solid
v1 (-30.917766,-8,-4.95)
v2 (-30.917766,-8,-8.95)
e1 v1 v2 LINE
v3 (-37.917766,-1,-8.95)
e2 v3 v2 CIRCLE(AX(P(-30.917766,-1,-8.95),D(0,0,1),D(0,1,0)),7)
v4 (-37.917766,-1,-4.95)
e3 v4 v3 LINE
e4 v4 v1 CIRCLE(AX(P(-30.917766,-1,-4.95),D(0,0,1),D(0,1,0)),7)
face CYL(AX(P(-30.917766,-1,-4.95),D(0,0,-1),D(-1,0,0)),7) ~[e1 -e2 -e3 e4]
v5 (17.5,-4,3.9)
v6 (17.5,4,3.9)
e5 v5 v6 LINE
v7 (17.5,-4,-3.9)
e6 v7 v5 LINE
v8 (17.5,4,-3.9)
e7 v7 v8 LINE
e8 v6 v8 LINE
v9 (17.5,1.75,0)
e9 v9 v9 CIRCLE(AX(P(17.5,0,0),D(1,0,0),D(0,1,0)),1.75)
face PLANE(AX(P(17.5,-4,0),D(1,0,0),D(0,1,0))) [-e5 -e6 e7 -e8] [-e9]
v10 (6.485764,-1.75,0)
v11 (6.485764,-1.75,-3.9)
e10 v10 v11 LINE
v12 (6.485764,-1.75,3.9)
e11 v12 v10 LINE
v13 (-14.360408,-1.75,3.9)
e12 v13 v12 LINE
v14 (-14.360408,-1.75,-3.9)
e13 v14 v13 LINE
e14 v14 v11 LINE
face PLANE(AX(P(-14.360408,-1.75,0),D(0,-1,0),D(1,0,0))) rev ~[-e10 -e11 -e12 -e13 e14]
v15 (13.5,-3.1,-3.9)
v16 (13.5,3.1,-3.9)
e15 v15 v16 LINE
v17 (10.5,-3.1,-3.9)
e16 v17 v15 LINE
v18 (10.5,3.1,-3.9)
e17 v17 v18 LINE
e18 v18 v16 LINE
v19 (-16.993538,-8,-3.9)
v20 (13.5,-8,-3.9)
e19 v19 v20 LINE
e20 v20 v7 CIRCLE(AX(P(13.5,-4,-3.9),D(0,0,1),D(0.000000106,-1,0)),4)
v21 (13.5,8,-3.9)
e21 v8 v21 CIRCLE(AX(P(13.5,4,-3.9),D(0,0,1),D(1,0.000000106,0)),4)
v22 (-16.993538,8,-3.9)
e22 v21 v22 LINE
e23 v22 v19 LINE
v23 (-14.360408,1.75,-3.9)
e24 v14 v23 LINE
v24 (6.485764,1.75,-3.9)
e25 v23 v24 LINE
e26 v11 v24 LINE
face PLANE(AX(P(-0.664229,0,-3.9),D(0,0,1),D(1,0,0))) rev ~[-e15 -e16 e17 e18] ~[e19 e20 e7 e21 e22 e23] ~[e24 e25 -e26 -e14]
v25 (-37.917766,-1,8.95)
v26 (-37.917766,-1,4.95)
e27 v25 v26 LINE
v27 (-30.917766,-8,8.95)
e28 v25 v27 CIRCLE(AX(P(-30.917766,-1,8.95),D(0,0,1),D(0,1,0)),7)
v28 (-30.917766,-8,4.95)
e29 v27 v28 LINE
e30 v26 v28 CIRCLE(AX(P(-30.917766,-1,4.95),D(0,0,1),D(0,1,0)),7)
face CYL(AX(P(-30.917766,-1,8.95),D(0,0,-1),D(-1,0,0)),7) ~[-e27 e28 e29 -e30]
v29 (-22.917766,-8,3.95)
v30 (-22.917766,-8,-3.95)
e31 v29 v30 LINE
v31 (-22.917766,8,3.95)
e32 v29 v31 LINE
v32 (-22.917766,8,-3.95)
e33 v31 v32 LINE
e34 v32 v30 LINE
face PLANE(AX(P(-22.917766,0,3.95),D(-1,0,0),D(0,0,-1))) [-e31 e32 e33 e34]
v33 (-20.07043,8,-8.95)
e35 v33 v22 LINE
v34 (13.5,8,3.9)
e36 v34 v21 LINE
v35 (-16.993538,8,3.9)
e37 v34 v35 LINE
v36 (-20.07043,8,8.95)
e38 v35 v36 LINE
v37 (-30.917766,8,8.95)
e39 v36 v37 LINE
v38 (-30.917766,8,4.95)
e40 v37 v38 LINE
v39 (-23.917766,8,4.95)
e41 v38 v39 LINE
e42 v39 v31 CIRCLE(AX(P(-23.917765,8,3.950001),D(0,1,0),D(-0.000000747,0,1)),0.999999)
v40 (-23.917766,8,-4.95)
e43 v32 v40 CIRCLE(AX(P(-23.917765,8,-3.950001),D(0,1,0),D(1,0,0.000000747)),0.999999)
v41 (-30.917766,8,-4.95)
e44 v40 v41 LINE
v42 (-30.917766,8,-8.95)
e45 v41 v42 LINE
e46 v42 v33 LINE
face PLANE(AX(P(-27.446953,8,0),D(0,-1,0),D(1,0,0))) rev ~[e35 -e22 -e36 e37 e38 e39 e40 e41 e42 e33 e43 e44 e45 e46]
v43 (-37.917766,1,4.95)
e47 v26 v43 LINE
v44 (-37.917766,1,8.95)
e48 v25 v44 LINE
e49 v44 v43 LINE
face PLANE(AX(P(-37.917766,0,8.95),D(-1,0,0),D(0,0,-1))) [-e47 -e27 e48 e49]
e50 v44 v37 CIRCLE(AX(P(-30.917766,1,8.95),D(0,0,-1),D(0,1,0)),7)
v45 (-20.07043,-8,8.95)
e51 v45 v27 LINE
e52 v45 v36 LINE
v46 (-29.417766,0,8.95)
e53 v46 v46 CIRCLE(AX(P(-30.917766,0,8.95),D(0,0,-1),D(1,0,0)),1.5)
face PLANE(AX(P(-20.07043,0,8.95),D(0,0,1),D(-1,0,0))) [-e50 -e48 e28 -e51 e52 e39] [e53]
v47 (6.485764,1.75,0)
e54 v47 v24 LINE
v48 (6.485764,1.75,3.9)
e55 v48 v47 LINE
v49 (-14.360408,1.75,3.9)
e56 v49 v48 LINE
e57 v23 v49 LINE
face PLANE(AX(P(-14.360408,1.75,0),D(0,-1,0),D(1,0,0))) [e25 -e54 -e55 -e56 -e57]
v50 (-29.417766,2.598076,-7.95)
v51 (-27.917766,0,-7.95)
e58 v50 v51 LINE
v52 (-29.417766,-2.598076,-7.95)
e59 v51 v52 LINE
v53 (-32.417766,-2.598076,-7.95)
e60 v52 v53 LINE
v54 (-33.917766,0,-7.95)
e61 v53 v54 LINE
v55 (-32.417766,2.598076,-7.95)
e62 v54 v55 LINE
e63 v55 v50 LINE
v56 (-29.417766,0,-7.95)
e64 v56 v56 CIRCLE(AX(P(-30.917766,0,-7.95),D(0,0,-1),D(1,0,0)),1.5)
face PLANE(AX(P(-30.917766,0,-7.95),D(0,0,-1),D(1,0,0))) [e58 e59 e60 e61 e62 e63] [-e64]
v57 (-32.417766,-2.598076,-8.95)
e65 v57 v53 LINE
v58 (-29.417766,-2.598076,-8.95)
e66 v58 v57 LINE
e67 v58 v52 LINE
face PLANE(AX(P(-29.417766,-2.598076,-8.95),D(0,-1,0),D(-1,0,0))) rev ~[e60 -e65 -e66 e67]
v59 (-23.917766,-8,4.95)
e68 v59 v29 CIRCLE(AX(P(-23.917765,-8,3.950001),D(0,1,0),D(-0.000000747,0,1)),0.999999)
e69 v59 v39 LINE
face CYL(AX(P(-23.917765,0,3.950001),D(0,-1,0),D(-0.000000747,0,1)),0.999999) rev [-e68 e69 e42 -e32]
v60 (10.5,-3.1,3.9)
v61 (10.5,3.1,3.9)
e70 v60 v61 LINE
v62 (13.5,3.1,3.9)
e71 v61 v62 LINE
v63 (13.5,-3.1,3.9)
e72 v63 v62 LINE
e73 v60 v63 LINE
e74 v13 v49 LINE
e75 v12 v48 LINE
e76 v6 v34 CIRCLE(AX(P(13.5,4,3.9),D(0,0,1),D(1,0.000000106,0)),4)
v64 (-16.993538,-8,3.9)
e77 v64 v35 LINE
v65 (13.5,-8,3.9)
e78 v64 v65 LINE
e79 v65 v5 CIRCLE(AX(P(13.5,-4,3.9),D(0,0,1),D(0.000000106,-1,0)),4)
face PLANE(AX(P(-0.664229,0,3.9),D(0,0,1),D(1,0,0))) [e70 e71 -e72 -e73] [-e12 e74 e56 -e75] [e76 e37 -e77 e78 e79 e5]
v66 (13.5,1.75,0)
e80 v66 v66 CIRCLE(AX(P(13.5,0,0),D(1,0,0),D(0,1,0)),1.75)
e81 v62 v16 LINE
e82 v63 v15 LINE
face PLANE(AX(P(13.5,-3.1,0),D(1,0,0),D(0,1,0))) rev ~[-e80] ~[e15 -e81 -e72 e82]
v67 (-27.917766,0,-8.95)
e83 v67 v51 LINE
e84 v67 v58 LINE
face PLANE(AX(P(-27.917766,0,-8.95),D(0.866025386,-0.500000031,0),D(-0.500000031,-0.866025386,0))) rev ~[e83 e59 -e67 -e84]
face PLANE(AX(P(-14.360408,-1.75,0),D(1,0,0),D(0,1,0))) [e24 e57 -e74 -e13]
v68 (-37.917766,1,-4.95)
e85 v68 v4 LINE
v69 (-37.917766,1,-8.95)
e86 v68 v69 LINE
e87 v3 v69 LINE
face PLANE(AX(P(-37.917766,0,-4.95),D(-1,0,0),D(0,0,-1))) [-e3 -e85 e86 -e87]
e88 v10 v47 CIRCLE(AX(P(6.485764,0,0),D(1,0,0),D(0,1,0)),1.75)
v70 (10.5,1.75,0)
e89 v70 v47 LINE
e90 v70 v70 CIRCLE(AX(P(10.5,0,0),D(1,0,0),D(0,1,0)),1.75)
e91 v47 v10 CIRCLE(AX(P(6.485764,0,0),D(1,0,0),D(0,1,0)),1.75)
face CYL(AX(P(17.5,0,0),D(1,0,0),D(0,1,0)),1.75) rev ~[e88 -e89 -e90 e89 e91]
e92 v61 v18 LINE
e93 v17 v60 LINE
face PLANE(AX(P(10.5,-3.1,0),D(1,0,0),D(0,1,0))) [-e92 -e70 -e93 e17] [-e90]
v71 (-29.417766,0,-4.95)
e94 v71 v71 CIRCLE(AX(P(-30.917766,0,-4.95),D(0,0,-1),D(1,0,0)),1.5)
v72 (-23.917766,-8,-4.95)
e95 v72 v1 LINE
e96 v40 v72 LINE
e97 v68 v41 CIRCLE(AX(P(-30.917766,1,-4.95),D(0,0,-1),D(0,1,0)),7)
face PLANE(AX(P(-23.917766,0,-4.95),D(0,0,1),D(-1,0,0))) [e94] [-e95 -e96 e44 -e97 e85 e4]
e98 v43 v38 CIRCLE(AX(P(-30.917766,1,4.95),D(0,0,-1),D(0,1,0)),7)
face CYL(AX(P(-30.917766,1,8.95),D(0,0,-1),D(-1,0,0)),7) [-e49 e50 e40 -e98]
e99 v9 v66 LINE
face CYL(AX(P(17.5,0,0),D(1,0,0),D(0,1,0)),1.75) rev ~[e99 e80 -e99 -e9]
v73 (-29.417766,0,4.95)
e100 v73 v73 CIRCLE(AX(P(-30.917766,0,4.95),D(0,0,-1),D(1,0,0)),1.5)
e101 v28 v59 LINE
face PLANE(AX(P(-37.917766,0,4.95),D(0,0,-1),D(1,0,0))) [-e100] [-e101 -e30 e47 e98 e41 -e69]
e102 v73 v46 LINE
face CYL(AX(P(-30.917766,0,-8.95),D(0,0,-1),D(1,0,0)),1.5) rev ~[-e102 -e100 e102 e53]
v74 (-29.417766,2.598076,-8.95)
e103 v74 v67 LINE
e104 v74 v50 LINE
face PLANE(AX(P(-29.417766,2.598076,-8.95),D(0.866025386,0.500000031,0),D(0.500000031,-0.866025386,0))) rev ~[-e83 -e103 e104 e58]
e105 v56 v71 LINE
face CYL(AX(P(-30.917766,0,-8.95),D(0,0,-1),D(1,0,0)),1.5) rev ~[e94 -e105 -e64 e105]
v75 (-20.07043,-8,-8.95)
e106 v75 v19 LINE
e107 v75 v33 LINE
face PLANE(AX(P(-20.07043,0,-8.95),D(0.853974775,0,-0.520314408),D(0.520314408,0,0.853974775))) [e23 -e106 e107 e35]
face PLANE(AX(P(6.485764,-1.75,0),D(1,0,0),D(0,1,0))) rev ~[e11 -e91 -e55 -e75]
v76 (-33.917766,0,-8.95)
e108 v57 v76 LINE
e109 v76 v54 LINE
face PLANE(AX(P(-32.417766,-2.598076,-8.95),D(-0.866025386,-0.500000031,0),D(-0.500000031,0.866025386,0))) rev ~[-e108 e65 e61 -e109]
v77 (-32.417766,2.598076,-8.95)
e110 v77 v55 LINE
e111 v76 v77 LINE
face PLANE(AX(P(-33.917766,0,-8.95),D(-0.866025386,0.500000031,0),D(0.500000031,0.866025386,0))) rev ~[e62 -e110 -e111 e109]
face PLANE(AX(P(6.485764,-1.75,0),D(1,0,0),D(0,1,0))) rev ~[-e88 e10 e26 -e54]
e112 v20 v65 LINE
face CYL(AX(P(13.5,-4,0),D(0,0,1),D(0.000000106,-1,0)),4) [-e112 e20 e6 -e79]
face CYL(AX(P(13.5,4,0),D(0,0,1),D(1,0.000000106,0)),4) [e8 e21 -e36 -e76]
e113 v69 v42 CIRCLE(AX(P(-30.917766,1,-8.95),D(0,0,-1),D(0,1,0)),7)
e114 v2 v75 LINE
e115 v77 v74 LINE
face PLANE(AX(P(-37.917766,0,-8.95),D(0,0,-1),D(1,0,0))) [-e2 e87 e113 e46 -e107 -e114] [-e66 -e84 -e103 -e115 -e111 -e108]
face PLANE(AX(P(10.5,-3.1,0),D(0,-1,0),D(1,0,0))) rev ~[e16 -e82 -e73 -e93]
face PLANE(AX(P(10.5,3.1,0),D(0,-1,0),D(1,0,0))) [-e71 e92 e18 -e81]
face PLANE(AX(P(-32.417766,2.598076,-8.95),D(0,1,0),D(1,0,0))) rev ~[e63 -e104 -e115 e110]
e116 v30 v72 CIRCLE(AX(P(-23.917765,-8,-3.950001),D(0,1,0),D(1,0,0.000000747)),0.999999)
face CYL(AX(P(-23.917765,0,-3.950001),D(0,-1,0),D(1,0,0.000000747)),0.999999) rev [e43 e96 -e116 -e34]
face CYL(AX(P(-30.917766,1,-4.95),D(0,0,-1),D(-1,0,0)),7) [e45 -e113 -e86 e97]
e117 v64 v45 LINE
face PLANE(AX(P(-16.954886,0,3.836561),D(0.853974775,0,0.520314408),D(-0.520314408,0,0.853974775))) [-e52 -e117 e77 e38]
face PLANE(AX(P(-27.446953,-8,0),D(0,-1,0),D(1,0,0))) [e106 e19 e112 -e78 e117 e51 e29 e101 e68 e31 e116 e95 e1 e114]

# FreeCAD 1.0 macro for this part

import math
import FreeCAD as App
import Part
import Sketcher

V = App.Vector
Q = App.Units.Quantity


def edges_at(feature, points):
    """Names of the edges that pass closest to the given points."""
    edges = feature.Shape.Edges
    near = lambda p: min(range(len(edges)), key=lambda i: edges[i].distToShape(Part.Vertex(*p))[0])
    return sorted({f"Edge{near(p) + 1}" for p in points})


def add_polygon(sketch, points):
    """Adds a closed chain of lines whose ends are joined by coincident constraints."""
    first, n = sketch.GeometryCount, len(points)
    for a, b in zip(points, points[1:] + points[:1]):
        sketch.addGeometry(Part.LineSegment(App.Vector(*a, 0), App.Vector(*b, 0)), False)
    for i in range(n):
        sketch.addConstraint(Sketcher.Constraint("Coincident", first + i, 2, first + (i + 1) % n, 1))

doc = App.newDocument("Part")
body = doc.addObject("PartDesign::Body", "Body")

sketch1 = doc.addObject("Sketcher::SketchObject", "Sketch")
body.addObject(sketch1)
sketch1.AttachmentSupport = (doc.XY_Plane, [""])
sketch1.MapMode = "FlatFace"
sketch1.addGeometry(Part.LineSegment(V(-17.5, 8, 0), V(-17.5, -8, 0)), False)
sketch1.addGeometry(Part.LineSegment(V(-17.5, -8, 0), V(13.5, -8, 0)), False)
sketch1.addGeometry(Part.ArcOfCircle(Part.Circle(V(13.5, -4, 0), V(0, 0, 1), 4), math.radians(-90), math.radians(0)), False)
sketch1.addGeometry(Part.LineSegment(V(17.5, -4, 0), V(17.5, 4, 0)), False)
sketch1.addGeometry(Part.ArcOfCircle(Part.Circle(V(13.5, 4, 0), V(0, 0, 1), 4), math.radians(0), math.radians(90)), False)
sketch1.addGeometry(Part.LineSegment(V(13.5, 8, 0), V(-17.5, 8, 0)), False)
add_polygon(sketch1, [(6.5, -1.8), (-14.4, -1.8), (-14.4, 1.8), (6.5, 1.8)])
add_polygon(sketch1, [(13.5, -3.1), (10.5, -3.1), (10.5, 3.1), (13.5, 3.1)])
sketch1.addConstraint(Sketcher.Constraint("Coincident", 0, 2, 1, 1))
sketch1.addConstraint(Sketcher.Constraint("Tangent", 1, 2, 2, 1))
sketch1.addConstraint(Sketcher.Constraint("Tangent", 2, 2, 3, 1))
sketch1.addConstraint(Sketcher.Constraint("Tangent", 3, 2, 4, 1))
sketch1.addConstraint(Sketcher.Constraint("Tangent", 4, 2, 5, 1))
sketch1.addConstraint(Sketcher.Constraint("Coincident", 5, 2, 0, 1))
sketch1.addConstraint(Sketcher.Constraint("Vertical", 0))
sketch1.addConstraint(Sketcher.Constraint("Horizontal", 1))
sketch1.addConstraint(Sketcher.Constraint("Vertical", 3))
sketch1.addConstraint(Sketcher.Constraint("Horizontal", 5))
sketch1.addConstraint(Sketcher.Constraint("Horizontal", 6))
sketch1.addConstraint(Sketcher.Constraint("Vertical", 7))
sketch1.addConstraint(Sketcher.Constraint("Horizontal", 8))
sketch1.addConstraint(Sketcher.Constraint("Vertical", 9))
sketch1.addConstraint(Sketcher.Constraint("Horizontal", 10))
sketch1.addConstraint(Sketcher.Constraint("Vertical", 11))
sketch1.addConstraint(Sketcher.Constraint("Horizontal", 12))
sketch1.addConstraint(Sketcher.Constraint("Vertical", 13))
sketch1.addConstraint(Sketcher.Constraint("Equal", 2, 4))
sketch1.addConstraint(Sketcher.Constraint("Vertical", 4, 2, 12, 2))
sketch1.addConstraint(Sketcher.Constraint("Radius", 2, Q("4 mm")))
sketch1.addConstraint(Sketcher.Constraint("DistanceX", 1, 1, 1, 2, Q("31 mm")))
sketch1.addConstraint(Sketcher.Constraint("DistanceX", 10, 2, 10, 1, Q("3 mm")))
sketch1.addConstraint(Sketcher.Constraint("DistanceY", 0, 2, 0, 1, Q("16 mm")))
sketch1.addConstraint(Sketcher.Constraint("DistanceY", 7, 1, 7, 2, Q("3.5 mm")))
sketch1.addConstraint(Sketcher.Constraint("DistanceY", 11, 1, 11, 2, Q("6.2 mm")))
sketch1.addConstraint(Sketcher.Constraint("DistanceY", 2, 3, -1, 1, Q("4 mm")))
sketch1.addConstraint(Sketcher.Constraint("DistanceX", -1, 1, 2, 3, Q("13.5 mm")))
sketch1.addConstraint(Sketcher.Constraint("DistanceY", 10, 2, -1, 1, Q("3.1 mm")))
sketch1.addConstraint(Sketcher.Constraint("DistanceY", 6, 2, -1, 1, Q("1.75 mm")))
sketch1.addConstraint(Sketcher.Constraint("DistanceX", 6, 2, 6, 1, Q("20.846172 mm")))
sketch1.addConstraint(Sketcher.Constraint("DistanceX", 6, 2, -1, 1, Q("14.360408 mm")))
pad1 = doc.addObject("PartDesign::Pad", "Pad")
body.addObject(pad1)
pad1.Profile = sketch1
pad1.Type = "TwoLengths"
pad1.Length = 3.9
pad1.Length2 = 3.9

sketch2 = doc.addObject("Sketcher::SketchObject", "Sketch001")
body.addObject(sketch2)
sketch2.AttachmentSupport = (doc.YZ_Plane, [""])
sketch2.MapMode = "FlatFace"
sketch2.AttachmentOffset = App.Placement(V(0, 0, 17.5), App.Rotation())
sketch2.addGeometry(Part.Circle(V(0, 0, 0), V(0, 0, 1), 1.8), False)
sketch2.addConstraint(Sketcher.Constraint("Coincident", 0, 3, -1, 1))
sketch2.addConstraint(Sketcher.Constraint("Diameter", 0, Q("3.5 mm")))
pocket1 = doc.addObject("PartDesign::Pocket", "Pocket")
body.addObject(pocket1)
pocket1.Profile = sketch2
pocket1.Length = 16.2

sketch3 = doc.addObject("Sketcher::SketchObject", "Sketch002")
body.addObject(sketch3)
sketch3.AttachmentSupport = (doc.XZ_Plane, [""])
sketch3.MapMode = "FlatFace"
sketch3.addGeometry(Part.LineSegment(V(-22.9, 4, 0), V(-22.9, -4, 0)), False)
sketch3.addGeometry(Part.ArcOfCircle(Part.Circle(V(-23.9, -4, 0), V(0, 0, 1), 1), math.radians(-90), math.radians(0)), False)
sketch3.addGeometry(Part.LineSegment(V(-23.9, -5, 0), V(-37.9, -5, 0)), False)
sketch3.addGeometry(Part.LineSegment(V(-37.9, -5, 0), V(-37.9, -8.9, 0)), False)
sketch3.addGeometry(Part.LineSegment(V(-37.9, -8.9, 0), V(-20.1, -8.9, 0)), False)
sketch3.addGeometry(Part.LineSegment(V(-20.1, -8.9, 0), V(-17, -3.8, 0)), False)
sketch3.addGeometry(Part.LineSegment(V(-17, -3.8, 0), V(-17, 3.8, 0)), False)
sketch3.addGeometry(Part.LineSegment(V(-17, 3.8, 0), V(-20.1, 8.9, 0)), False)
sketch3.addGeometry(Part.LineSegment(V(-20.1, 8.9, 0), V(-37.9, 8.9, 0)), False)
sketch3.addGeometry(Part.LineSegment(V(-37.9, 8.9, 0), V(-37.9, 5, 0)), False)
sketch3.addGeometry(Part.LineSegment(V(-37.9, 5, 0), V(-23.9, 5, 0)), False)
sketch3.addGeometry(Part.ArcOfCircle(Part.Circle(V(-23.9, 4, 0), V(0, 0, 1), 1), math.radians(0), math.radians(90)), False)
sketch3.addConstraint(Sketcher.Constraint("Tangent", 0, 2, 1, 2))
sketch3.addConstraint(Sketcher.Constraint("Tangent", 1, 1, 2, 1))
sketch3.addConstraint(Sketcher.Constraint("Coincident", 2, 2, 3, 1))
sketch3.addConstraint(Sketcher.Constraint("Coincident", 3, 2, 4, 1))
sketch3.addConstraint(Sketcher.Constraint("Coincident", 4, 2, 5, 1))
sketch3.addConstraint(Sketcher.Constraint("Coincident", 5, 2, 6, 1))
sketch3.addConstraint(Sketcher.Constraint("Coincident", 6, 2, 7, 1))
sketch3.addConstraint(Sketcher.Constraint("Coincident", 7, 2, 8, 1))
sketch3.addConstraint(Sketcher.Constraint("Coincident", 8, 2, 9, 1))
sketch3.addConstraint(Sketcher.Constraint("Coincident", 9, 2, 10, 1))
sketch3.addConstraint(Sketcher.Constraint("Tangent", 10, 2, 11, 2))
sketch3.addConstraint(Sketcher.Constraint("Tangent", 11, 1, 0, 1))
sketch3.addConstraint(Sketcher.Constraint("Vertical", 0))
sketch3.addConstraint(Sketcher.Constraint("Horizontal", 2))
sketch3.addConstraint(Sketcher.Constraint("Vertical", 3))
sketch3.addConstraint(Sketcher.Constraint("Horizontal", 4))
sketch3.addConstraint(Sketcher.Constraint("Vertical", 6))
sketch3.addConstraint(Sketcher.Constraint("Horizontal", 8))
sketch3.addConstraint(Sketcher.Constraint("Vertical", 9))
sketch3.addConstraint(Sketcher.Constraint("Horizontal", 10))
sketch3.addConstraint(Sketcher.Constraint("Equal", 1, 11))
sketch3.addConstraint(Sketcher.Constraint("Symmetric", 4, 2, 7, 2, -1))
sketch3.addConstraint(Sketcher.Constraint("Symmetric", 2, 2, 9, 2, -1))
sketch3.addConstraint(Sketcher.Constraint("Equal", 5, 7))
sketch3.addConstraint(Sketcher.Constraint("Radius", 1, Q("0.999999 mm")))
sketch3.addConstraint(Sketcher.Constraint("DistanceX", 2, 2, 2, 1, Q("14 mm")))
sketch3.addConstraint(Sketcher.Constraint("DistanceY", 3, 2, 3, 1, Q("4 mm")))
sketch3.addConstraint(Sketcher.Constraint("DistanceY", 0, 2, 0, 1, Q("7.9 mm")))
sketch3.addConstraint(Sketcher.Constraint("Distance", 5, Q("5.98781 mm")))
sketch3.addConstraint(Sketcher.Constraint("DistanceX", 4, 1, 4, 2, Q("17.847336 mm")))
sketch3.addConstraint(Sketcher.Constraint("DistanceY", 6, 1, 6, 2, Q("7.673122 mm")))
sketch3.addConstraint(Sketcher.Constraint("DistanceX", 4, 2, -1, 1, Q("20.07043 mm")))
pad2 = doc.addObject("PartDesign::Pad", "Pad001")
body.addObject(pad2)
pad2.Profile = sketch3
pad2.Type = "TwoLengths"
pad2.Length = 8
pad2.Length2 = 8
doc.recompute()

fillet = doc.addObject("PartDesign::Fillet", "Fillet")
body.addObject(fillet)
fillet.Base = (pad2, edges_at(pad2, [
    (-37.918, -8, -6.95),
    (-37.918, -8, 6.95),
    (-37.918, 8, 6.95),
    (-37.918, 8, -6.95),
]))
fillet.Radius = 7

sketch4 = doc.addObject("Sketcher::SketchObject", "Sketch003")
body.addObject(sketch4)
sketch4.AttachmentSupport = (doc.XY_Plane, [""])
sketch4.MapMode = "FlatFace"
sketch4.AttachmentOffset = App.Placement(V(0, 0, -8.95), App.Rotation())
sketch4.addGeometry(Part.Circle(V(-30.9, 0, 0), V(0, 0, 1), 1.5), False)
sketch4.addConstraint(Sketcher.Constraint("PointOnObject", 0, 3, -1))
sketch4.addConstraint(Sketcher.Constraint("Diameter", 0, Q("3 mm")))
sketch4.addConstraint(Sketcher.Constraint("DistanceX", 0, 3, -1, 1, Q("30.917766 mm")))
pocket2 = doc.addObject("PartDesign::Pocket", "Pocket001")
body.addObject(pocket2)
pocket2.Profile = sketch4
pocket2.Length = 25
pocket2.Reversed = True

sketch5 = doc.addObject("Sketcher::SketchObject", "Sketch004")
body.addObject(sketch5)
sketch5.AttachmentSupport = (doc.XY_Plane, [""])
sketch5.MapMode = "FlatFace"
sketch5.AttachmentOffset = App.Placement(V(0, 0, -8.95), App.Rotation())
add_polygon(sketch5, [(-29.4, 2.6), (-27.9, 0), (-29.4, -2.6), (-32.4, -2.6), (-33.9, 0), (-32.4, 2.6)])
sketch5.addGeometry(Part.Circle(V(-30.9, 0, 0), V(0, 0, 1), 1.5), False)
sketch5.addConstraint(Sketcher.Constraint("Horizontal", 2))
sketch5.addConstraint(Sketcher.Constraint("Horizontal", 5))
sketch5.addConstraint(Sketcher.Constraint("Symmetric", 2, 2, 4, 2, -1))
sketch5.addConstraint(Sketcher.Constraint("PointOnObject", 6, 3, -1))
sketch5.addConstraint(Sketcher.Constraint("PointOnObject", 0, 2, -1))
sketch5.addConstraint(Sketcher.Constraint("PointOnObject", 3, 2, -1))
sketch5.addConstraint(Sketcher.Constraint("Parallel", 0, 3))
sketch5.addConstraint(Sketcher.Constraint("Parallel", 1, 4))
sketch5.addConstraint(Sketcher.Constraint("Diameter", 6, Q("3 mm")))
sketch5.addConstraint(Sketcher.Constraint("DistanceX", 2, 2, 2, 1, Q("3 mm")))
sketch5.addConstraint(Sketcher.Constraint("Angle", 0, Q("-59.999998 deg")))
sketch5.addConstraint(Sketcher.Constraint("Distance", 0, Q("3 mm")))
sketch5.addConstraint(Sketcher.Constraint("DistanceX", 6, 3, 0, 2, Q("3 mm")))
sketch5.addConstraint(Sketcher.Constraint("DistanceX", 6, 3, -1, 1, Q("30.917766 mm")))
pocket3 = doc.addObject("PartDesign::Pocket", "Pocket002")
body.addObject(pocket3)
pocket3.Profile = sketch5
pocket3.Length = 1
pocket3.Reversed = True

doc.recompute()
